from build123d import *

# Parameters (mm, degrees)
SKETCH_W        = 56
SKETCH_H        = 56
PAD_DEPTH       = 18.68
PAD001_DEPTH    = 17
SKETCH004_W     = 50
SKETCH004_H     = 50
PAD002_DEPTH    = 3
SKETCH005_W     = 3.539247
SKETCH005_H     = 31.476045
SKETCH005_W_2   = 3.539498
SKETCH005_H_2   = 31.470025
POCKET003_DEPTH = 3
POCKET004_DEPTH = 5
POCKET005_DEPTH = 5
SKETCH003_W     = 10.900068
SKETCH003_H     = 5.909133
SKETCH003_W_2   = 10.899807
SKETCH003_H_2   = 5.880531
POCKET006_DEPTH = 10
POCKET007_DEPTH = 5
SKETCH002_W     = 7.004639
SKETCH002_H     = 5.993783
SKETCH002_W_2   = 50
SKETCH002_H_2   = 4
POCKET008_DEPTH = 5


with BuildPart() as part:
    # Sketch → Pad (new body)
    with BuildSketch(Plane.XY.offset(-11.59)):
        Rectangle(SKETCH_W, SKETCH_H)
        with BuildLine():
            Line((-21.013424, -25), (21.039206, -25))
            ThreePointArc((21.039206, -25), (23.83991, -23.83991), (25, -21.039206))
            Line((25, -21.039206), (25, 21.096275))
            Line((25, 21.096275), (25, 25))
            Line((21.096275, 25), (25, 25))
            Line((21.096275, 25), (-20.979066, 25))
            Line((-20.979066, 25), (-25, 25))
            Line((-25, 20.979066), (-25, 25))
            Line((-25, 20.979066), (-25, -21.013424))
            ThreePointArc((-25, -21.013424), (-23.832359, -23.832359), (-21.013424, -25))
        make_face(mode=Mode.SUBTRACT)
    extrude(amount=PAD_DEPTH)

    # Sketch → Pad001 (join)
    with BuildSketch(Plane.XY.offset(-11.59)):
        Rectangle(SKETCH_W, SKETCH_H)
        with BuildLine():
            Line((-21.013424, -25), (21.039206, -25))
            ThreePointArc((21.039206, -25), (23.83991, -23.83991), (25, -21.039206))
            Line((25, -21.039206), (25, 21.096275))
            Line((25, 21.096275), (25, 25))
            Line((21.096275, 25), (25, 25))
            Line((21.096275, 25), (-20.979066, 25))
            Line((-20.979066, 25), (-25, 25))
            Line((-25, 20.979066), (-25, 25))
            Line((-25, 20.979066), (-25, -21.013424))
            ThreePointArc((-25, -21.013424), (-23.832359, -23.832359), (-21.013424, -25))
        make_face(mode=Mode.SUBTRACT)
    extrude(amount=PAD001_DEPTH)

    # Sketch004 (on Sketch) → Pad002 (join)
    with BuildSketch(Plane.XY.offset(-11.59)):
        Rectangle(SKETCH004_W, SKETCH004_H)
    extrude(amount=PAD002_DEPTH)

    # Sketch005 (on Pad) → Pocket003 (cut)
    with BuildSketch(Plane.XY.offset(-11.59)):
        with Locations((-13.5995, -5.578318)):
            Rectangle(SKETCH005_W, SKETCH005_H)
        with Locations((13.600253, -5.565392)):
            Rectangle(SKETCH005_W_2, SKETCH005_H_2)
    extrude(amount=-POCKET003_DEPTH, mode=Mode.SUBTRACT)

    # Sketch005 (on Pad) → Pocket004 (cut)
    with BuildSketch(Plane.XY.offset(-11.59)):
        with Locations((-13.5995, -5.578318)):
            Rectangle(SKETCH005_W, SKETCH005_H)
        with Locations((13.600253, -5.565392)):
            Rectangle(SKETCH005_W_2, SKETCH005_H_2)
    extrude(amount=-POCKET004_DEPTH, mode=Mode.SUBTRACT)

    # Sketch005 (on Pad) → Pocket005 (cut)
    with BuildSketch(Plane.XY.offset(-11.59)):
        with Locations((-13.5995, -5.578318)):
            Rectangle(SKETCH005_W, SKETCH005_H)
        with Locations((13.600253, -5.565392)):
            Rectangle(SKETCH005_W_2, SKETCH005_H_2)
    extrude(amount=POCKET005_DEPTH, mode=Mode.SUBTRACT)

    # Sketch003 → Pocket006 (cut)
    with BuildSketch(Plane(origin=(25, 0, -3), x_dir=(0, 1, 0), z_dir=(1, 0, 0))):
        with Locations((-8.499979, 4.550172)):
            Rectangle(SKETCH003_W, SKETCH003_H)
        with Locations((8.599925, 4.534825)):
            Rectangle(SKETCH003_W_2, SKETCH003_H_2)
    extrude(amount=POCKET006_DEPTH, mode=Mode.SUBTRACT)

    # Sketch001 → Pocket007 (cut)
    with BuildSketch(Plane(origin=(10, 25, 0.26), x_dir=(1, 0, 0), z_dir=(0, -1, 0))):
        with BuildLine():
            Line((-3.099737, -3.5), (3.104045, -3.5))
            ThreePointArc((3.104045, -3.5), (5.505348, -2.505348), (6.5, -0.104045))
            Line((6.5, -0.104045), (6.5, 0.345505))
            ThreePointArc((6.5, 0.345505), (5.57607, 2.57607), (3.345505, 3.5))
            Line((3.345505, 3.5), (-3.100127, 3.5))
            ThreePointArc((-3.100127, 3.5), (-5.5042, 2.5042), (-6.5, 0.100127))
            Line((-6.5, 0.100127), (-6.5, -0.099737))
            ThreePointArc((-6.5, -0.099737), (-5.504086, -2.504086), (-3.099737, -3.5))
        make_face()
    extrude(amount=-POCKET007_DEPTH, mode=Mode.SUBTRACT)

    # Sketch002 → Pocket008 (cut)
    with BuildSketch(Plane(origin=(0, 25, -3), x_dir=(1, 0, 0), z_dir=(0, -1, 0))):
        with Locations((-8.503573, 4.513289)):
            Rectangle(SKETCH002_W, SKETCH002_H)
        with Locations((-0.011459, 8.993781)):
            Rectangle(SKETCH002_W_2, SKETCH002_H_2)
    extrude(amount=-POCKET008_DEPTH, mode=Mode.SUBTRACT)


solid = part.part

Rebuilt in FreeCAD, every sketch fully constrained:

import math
import FreeCAD as App
import Part
import Sketcher
from FreeCAD import Vector
Q = App.Units.Quantity


def add_polygon(sketch, points):
    """Adds a closed chain of lines whose ends are joined by coincident constraints."""
    first, n = sketch.GeometryCount, len(points)
    for a, b in zip(points, points[1:] + points[:1]):
        sketch.addGeometry(Part.LineSegment(App.Vector(*a, 0), App.Vector(*b, 0)), False)
    for i in range(n):
        sketch.addConstraint(Sketcher.Constraint("Coincident", first + i, 2, first + (i + 1) % n, 1))

doc = App.newDocument("Part")
body = doc.addObject("PartDesign::Body", "Body")

# Sketch on XY plane
sketch1 = doc.addObject("Sketcher::SketchObject", "Sketch")
body.addObject(sketch1)
sketch1.AttachmentSupport = (doc.XY_Plane, [""])
sketch1.MapMode = "FlatFace"
sketch1.AttachmentOffset = App.Placement(Vector(0, 0, -11.59), App.Rotation())
add_polygon(sketch1, [(-28, 28), (-28, -28), (28, -28), (28, 28)])  # lines 0-3
sketch1.addGeometry(Part.LineSegment(Vector(21, -25, 0), Vector(-21, -25, 0)), False)  # 4
sketch1.addGeometry(Part.ArcOfCircle(Part.Circle(Vector(-21, -21, 0), Vector(0, 0, 1), 4), math.radians(180), math.radians(270)), False)  # 5
sketch1.addGeometry(Part.LineSegment(Vector(-25, -21, 0), Vector(-25, 25, 0)), False)  # 6
sketch1.addGeometry(Part.LineSegment(Vector(-25, 25, 0), Vector(25, 25, 0)), False)  # 7
sketch1.addGeometry(Part.LineSegment(Vector(25, 25, 0), Vector(25, -21, 0)), False)  # 8
sketch1.addGeometry(Part.ArcOfCircle(Part.Circle(Vector(21, -21, 0), Vector(0, 0, 1), 4), math.radians(-90), math.radians(0)), False)  # 9
sketch1.addConstraint([
    Sketcher.Constraint("Tangent", 4, 2, 5, 2),
    Sketcher.Constraint("Tangent", 5, 1, 6, 1),
    Sketcher.Constraint("Coincident", 6, 2, 7, 1),
    Sketcher.Constraint("Coincident", 7, 2, 8, 1),
    Sketcher.Constraint("Tangent", 8, 2, 9, 2),
    Sketcher.Constraint("Tangent", 9, 1, 4, 1),
    Sketcher.Constraint("Vertical", 0),
    Sketcher.Constraint("Horizontal", 1),
    Sketcher.Constraint("Vertical", 2),
    Sketcher.Constraint("Horizontal", 3),
    Sketcher.Constraint("Horizontal", 4),
    Sketcher.Constraint("Vertical", 6),
    Sketcher.Constraint("Horizontal", 7),
    Sketcher.Constraint("Vertical", 8),
    Sketcher.Constraint("Symmetric", 0, 2, 2, 2, -1, 1),
    Sketcher.Constraint("Equal", 3, 0),
    Sketcher.Constraint("DistanceX", 1, 1, 1, 2, Q("56 mm")),
    Sketcher.Constraint("DistanceX", 7, 1, 7, 2, Q("50 mm")),
    Sketcher.Constraint("DistanceY", 4, 2, -1, 1, Q("25 mm")),
    Sketcher.Constraint("DistanceX", 5, 1, -1, 1, Q("25 mm")),
    Sketcher.Constraint("DistanceY", -1, 1, 6, 2, Q("25 mm")),
    Sketcher.Constraint("Radius", 5, Q("3.986576 mm")),
    Sketcher.Constraint("Radius", 9, Q("3.960795 mm")),
])
pad1 = doc.addObject("PartDesign::Pad", "Pad")
body.addObject(pad1)
pad1.Profile = sketch1
pad1.Length = 18.68

# Sketch on XY plane
sketch2 = doc.addObject("Sketcher::SketchObject", "Sketch001")
body.addObject(sketch2)
sketch2.AttachmentSupport = (doc.XY_Plane, [""])
sketch2.MapMode = "FlatFace"
sketch2.AttachmentOffset = App.Placement(Vector(0, 0, -11.59), App.Rotation())
add_polygon(sketch2, [(-28, 28), (-28, -28), (28, -28), (28, 28)])  # lines 0-3
sketch2.addGeometry(Part.LineSegment(Vector(21, -25, 0), Vector(-21, -25, 0)), False)  # 4
sketch2.addGeometry(Part.ArcOfCircle(Part.Circle(Vector(-21, -21, 0), Vector(0, 0, 1), 4), math.radians(180), math.radians(270)), False)  # 5
sketch2.addGeometry(Part.LineSegment(Vector(-25, -21, 0), Vector(-25, 25, 0)), False)  # 6
sketch2.addGeometry(Part.LineSegment(Vector(-25, 25, 0), Vector(25, 25, 0)), False)  # 7
sketch2.addGeometry(Part.LineSegment(Vector(25, 25, 0), Vector(25, -21, 0)), False)  # 8
sketch2.addGeometry(Part.ArcOfCircle(Part.Circle(Vector(21, -21, 0), Vector(0, 0, 1), 4), math.radians(-90), math.radians(0)), False)  # 9
sketch2.addConstraint([
    Sketcher.Constraint("Tangent", 4, 2, 5, 2),
    Sketcher.Constraint("Tangent", 5, 1, 6, 1),
    Sketcher.Constraint("Coincident", 6, 2, 7, 1),
    Sketcher.Constraint("Coincident", 7, 2, 8, 1),
    Sketcher.Constraint("Tangent", 8, 2, 9, 2),
    Sketcher.Constraint("Tangent", 9, 1, 4, 1),
    Sketcher.Constraint("Vertical", 0),
    Sketcher.Constraint("Horizontal", 1),
    Sketcher.Constraint("Vertical", 2),
    Sketcher.Constraint("Horizontal", 3),
    Sketcher.Constraint("Horizontal", 4),
    Sketcher.Constraint("Vertical", 6),
    Sketcher.Constraint("Horizontal", 7),
    Sketcher.Constraint("Vertical", 8),
    Sketcher.Constraint("Symmetric", 0, 2, 2, 2, -1, 1),
    Sketcher.Constraint("Equal", 3, 0),
    Sketcher.Constraint("DistanceX", 1, 1, 1, 2, Q("56 mm")),
    Sketcher.Constraint("DistanceX", 7, 1, 7, 2, Q("50 mm")),
    Sketcher.Constraint("DistanceY", 4, 2, -1, 1, Q("25 mm")),
    Sketcher.Constraint("DistanceX", 5, 1, -1, 1, Q("25 mm")),
    Sketcher.Constraint("DistanceY", -1, 1, 6, 2, Q("25 mm")),
    Sketcher.Constraint("Radius", 5, Q("3.986576 mm")),
    Sketcher.Constraint("Radius", 9, Q("3.960795 mm")),
])
pad2 = doc.addObject("PartDesign::Pad", "Pad001")
body.addObject(pad2)
pad2.Profile = sketch2
pad2.Length = 17

# Sketch on XY plane
sketch3 = doc.addObject("Sketcher::SketchObject", "Sketch002")
body.addObject(sketch3)
sketch3.AttachmentSupport = (doc.XY_Plane, [""])
sketch3.MapMode = "FlatFace"
sketch3.AttachmentOffset = App.Placement(Vector(0, 0, -11.59), App.Rotation())
add_polygon(sketch3, [(-25, 25), (-25, -25), (25, -25), (25, 25)])  # lines 0-3
sketch3.addConstraint([
    Sketcher.Constraint("Vertical", 0),
    Sketcher.Constraint("Horizontal", 1),
    Sketcher.Constraint("Vertical", 2),
    Sketcher.Constraint("Horizontal", 3),
    Sketcher.Constraint("Symmetric", 0, 2, 2, 2, -1, 1),
    Sketcher.Constraint("Equal", 3, 0),
    Sketcher.Constraint("DistanceX", 1, 1, 1, 2, Q("50 mm")),
])
pad3 = doc.addObject("PartDesign::Pad", "Pad002")
body.addObject(pad3)
pad3.Profile = sketch3
pad3.Length = 3

# Sketch on XY plane
sketch4 = doc.addObject("Sketcher::SketchObject", "Sketch003")
body.addObject(sketch4)
sketch4.AttachmentSupport = (doc.XY_Plane, [""])
sketch4.MapMode = "FlatFace"
sketch4.AttachmentOffset = App.Placement(Vector(0, 0, -11.59), App.Rotation())
add_polygon(sketch4, [(-15.4, 10.2), (-15.4, -21.3), (-11.8, -21.3), (-11.8, 10.2)])  # lines 0-3
add_polygon(sketch4, [(11.8, 10.2), (11.8, -21.3), (15.4, -21.3), (15.4, 10.2)])  # lines 4-7
sketch4.addConstraint([
    Sketcher.Constraint("Vertical", 0),
    Sketcher.Constraint("Horizontal", 1),
    Sketcher.Constraint("Vertical", 2),
    Sketcher.Constraint("Horizontal", 3),
    Sketcher.Constraint("Vertical", 4),
    Sketcher.Constraint("Horizontal", 5),
    Sketcher.Constraint("Vertical", 6),
    Sketcher.Constraint("Horizontal", 7),
    Sketcher.Constraint("DistanceX", 5, 1, 5, 2, Q("3.539498 mm")),
    Sketcher.Constraint("DistanceX", 1, 1, 1, 2, Q("3.539247 mm")),
    Sketcher.Constraint("DistanceY", 0, 2, 0, 1, Q("31.476045 mm")),
    Sketcher.Constraint("DistanceY", 4, 2, 4, 1, Q("31.470025 mm")),
    Sketcher.Constraint("DistanceY", 0, 2, -1, 1, Q("21.31634 mm")),
    Sketcher.Constraint("DistanceY", -1, 1, 6, 2, Q("10.169621 mm")),
    Sketcher.Constraint("DistanceX", 1, 2, 4, 2, Q("23.66038 mm")),
    Sketcher.Constraint("DistanceX", 0, 2, -1, 1, Q("15.369124 mm")),
])
pocket1 = doc.addObject("PartDesign::Pocket", "Pocket")
body.addObject(pocket1)
pocket1.Profile = sketch4
pocket1.Length = 3

# Sketch on XY plane
sketch5 = doc.addObject("Sketcher::SketchObject", "Sketch004")
body.addObject(sketch5)
sketch5.AttachmentSupport = (doc.XY_Plane, [""])
sketch5.MapMode = "FlatFace"
sketch5.AttachmentOffset = App.Placement(Vector(0, 0, -11.59), App.Rotation())
add_polygon(sketch5, [(-15.4, 10.2), (-15.4, -21.3), (-11.8, -21.3), (-11.8, 10.2)])  # lines 0-3
add_polygon(sketch5, [(11.8, 10.2), (11.8, -21.3), (15.4, -21.3), (15.4, 10.2)])  # lines 4-7
sketch5.addConstraint([
    Sketcher.Constraint("Vertical", 0),
    Sketcher.Constraint("Horizontal", 1),
    Sketcher.Constraint("Vertical", 2),
    Sketcher.Constraint("Horizontal", 3),
    Sketcher.Constraint("Vertical", 4),
    Sketcher.Constraint("Horizontal", 5),
    Sketcher.Constraint("Vertical", 6),
    Sketcher.Constraint("Horizontal", 7),
    Sketcher.Constraint("DistanceX", 5, 1, 5, 2, Q("3.539498 mm")),
    Sketcher.Constraint("DistanceX", 1, 1, 1, 2, Q("3.539247 mm")),
    Sketcher.Constraint("DistanceY", 0, 2, 0, 1, Q("31.476045 mm")),
    Sketcher.Constraint("DistanceY", 4, 2, 4, 1, Q("31.470025 mm")),
    Sketcher.Constraint("DistanceY", 0, 2, -1, 1, Q("21.31634 mm")),
    Sketcher.Constraint("DistanceY", -1, 1, 6, 2, Q("10.169621 mm")),
    Sketcher.Constraint("DistanceX", 1, 2, 4, 2, Q("23.66038 mm")),
    Sketcher.Constraint("DistanceX", 0, 2, -1, 1, Q("15.369124 mm")),
])
pocket2 = doc.addObject("PartDesign::Pocket", "Pocket001")
body.addObject(pocket2)
pocket2.Profile = sketch5
pocket2.Length = 5

# Sketch on XY plane
sketch6 = doc.addObject("Sketcher::SketchObject", "Sketch005")
body.addObject(sketch6)
sketch6.AttachmentSupport = (doc.XY_Plane, [""])
sketch6.MapMode = "FlatFace"
sketch6.AttachmentOffset = App.Placement(Vector(0, 0, -11.59), App.Rotation())
add_polygon(sketch6, [(-15.4, 10.2), (-15.4, -21.3), (-11.8, -21.3), (-11.8, 10.2)])  # lines 0-3
add_polygon(sketch6, [(11.8, 10.2), (11.8, -21.3), (15.4, -21.3), (15.4, 10.2)])  # lines 4-7
sketch6.addConstraint([
    Sketcher.Constraint("Vertical", 0),
    Sketcher.Constraint("Horizontal", 1),
    Sketcher.Constraint("Vertical", 2),
    Sketcher.Constraint("Horizontal", 3),
    Sketcher.Constraint("Vertical", 4),
    Sketcher.Constraint("Horizontal", 5),
    Sketcher.Constraint("Vertical", 6),
    Sketcher.Constraint("Horizontal", 7),
    Sketcher.Constraint("DistanceX", 5, 1, 5, 2, Q("3.539498 mm")),
    Sketcher.Constraint("DistanceX", 1, 1, 1, 2, Q("3.539247 mm")),
    Sketcher.Constraint("DistanceY", 0, 2, 0, 1, Q("31.476045 mm")),
    Sketcher.Constraint("DistanceY", 4, 2, 4, 1, Q("31.470025 mm")),
    Sketcher.Constraint("DistanceY", 0, 2, -1, 1, Q("21.31634 mm")),
    Sketcher.Constraint("DistanceY", -1, 1, 6, 2, Q("10.169621 mm")),
    Sketcher.Constraint("DistanceX", 1, 2, 4, 2, Q("23.66038 mm")),
    Sketcher.Constraint("DistanceX", 0, 2, -1, 1, Q("15.369124 mm")),
])
pocket3 = doc.addObject("PartDesign::Pocket", "Pocket002")
body.addObject(pocket3)
pocket3.Profile = sketch6
pocket3.Length = 5
pocket3.Reversed = True

# Sketch on YZ plane
sketch7 = doc.addObject("Sketcher::SketchObject", "Sketch006")
body.addObject(sketch7)
sketch7.AttachmentSupport = (doc.YZ_Plane, [""])
sketch7.MapMode = "FlatFace"
sketch7.AttachmentOffset = App.Placement(Vector(0, 0, 25), App.Rotation())
add_polygon(sketch7, [(-14, 5), (-14, -1), (-3, -1), (-3, 5)])  # lines 0-3
add_polygon(sketch7, [(3, 4), (3, -1), (14, -1), (14, 4)])  # lines 4-7
sketch7.addConstraint([
    Sketcher.Constraint("Vertical", 0),
    Sketcher.Constraint("Horizontal", 1),
    Sketcher.Constraint("Vertical", 2),
    Sketcher.Constraint("Horizontal", 3),
    Sketcher.Constraint("Vertical", 4),
    Sketcher.Constraint("Horizontal", 5),
    Sketcher.Constraint("Vertical", 6),
    Sketcher.Constraint("Horizontal", 7),
    Sketcher.Constraint("DistanceX", 1, 1, 1, 2, Q("10.900068 mm")),
    Sketcher.Constraint("DistanceY", 4, 2, 4, 1, Q("5.880531 mm")),
    Sketcher.Constraint("DistanceX", 5, 1, 5, 2, Q("10.899807 mm")),
    Sketcher.Constraint("DistanceY", 0, 2, 0, 1, Q("5.909133 mm")),
    Sketcher.Constraint("DistanceY", -1, 1, 2, 2, Q("4.504739 mm")),
    Sketcher.Constraint("DistanceX", -1, 1, 4, 2, Q("3.150021 mm")),
    Sketcher.Constraint("DistanceY", 4, 2, -1, 1, Q("1.405441 mm")),
    Sketcher.Constraint("DistanceX", 0, 2, 5, 2, Q("27.999842 mm")),
])
pocket4 = doc.addObject("PartDesign::Pocket", "Pocket003")
body.addObject(pocket4)
pocket4.Profile = sketch7
pocket4.Length = 10
pocket4.Reversed = True

# Sketch on XZ plane
sketch8 = doc.addObject("Sketcher::SketchObject", "Sketch007")
body.addObject(sketch8)
sketch8.AttachmentSupport = (doc.XZ_Plane, [""])
sketch8.MapMode = "FlatFace"
sketch8.AttachmentOffset = App.Placement(Vector(0, 0, -25), App.Rotation())
sketch8.addGeometry([
    Part.LineSegment(Vector(6.9, -3.24, 0), Vector(13.1, -3.24, 0)),  # 0
    Part.ArcOfCircle(Part.Circle(Vector(13.1, 0.16, 0), Vector(0, 0, 1), 3.4), math.radians(-90), math.radians(0)),  # 1
    Part.LineSegment(Vector(16.5, 0.16, 0), Vector(16.5, 0.61, 0)),  # 2
    Part.ArcOfCircle(Part.Circle(Vector(13.35, 0.61, 0), Vector(0, 0, 1), 3.15), math.radians(0), math.radians(90)),  # 3
    Part.LineSegment(Vector(13.35, 3.76, 0), Vector(6.9, 3.76, 0)),  # 4
    Part.ArcOfCircle(Part.Circle(Vector(6.9, 0.36, 0), Vector(0, 0, 1), 3.4), math.radians(90), math.radians(180)),  # 5
    Part.LineSegment(Vector(3.5, 0.36, 0), Vector(3.5, 0.16, 0)),  # 6
    Part.ArcOfCircle(Part.Circle(Vector(6.9, 0.16, 0), Vector(0, 0, 1), 3.4), math.radians(-180), math.radians(-90)),  # 7
], False)
sketch8.addConstraint([
    Sketcher.Constraint("Tangent", 0, 2, 1, 1),
    Sketcher.Constraint("Tangent", 1, 2, 2, 1),
    Sketcher.Constraint("Tangent", 2, 2, 3, 1),
    Sketcher.Constraint("Tangent", 3, 2, 4, 1),
    Sketcher.Constraint("Tangent", 4, 2, 5, 1),
    Sketcher.Constraint("Tangent", 5, 2, 6, 1),
    Sketcher.Constraint("Tangent", 6, 2, 7, 1),
    Sketcher.Constraint("Tangent", 7, 2, 0, 1),
    Sketcher.Constraint("Horizontal", 0),
    Sketcher.Constraint("Vertical", 2),
    Sketcher.Constraint("Horizontal", 4),
    Sketcher.Constraint("Vertical", 6),
    Sketcher.Constraint("DistanceY", 0, 2, 3, 2, Q("7 mm")),
    Sketcher.Constraint("DistanceX", -1, 1, 1, 2, Q("16.5 mm")),
    Sketcher.Constraint("DistanceX", -1, 1, 5, 2, Q("3.5 mm")),
    Sketcher.Constraint("DistanceY", 0, 2, -1, 1, Q("3.24 mm")),
    Sketcher.Constraint("Radius", 1, Q("3.395954 mm")),
    Sketcher.Constraint("Radius", 3, Q("3.154494 mm")),
    Sketcher.Constraint("Radius", 5, Q("3.399874 mm")),
    Sketcher.Constraint("Radius", 7, Q("3.400263 mm")),
])
pocket5 = doc.addObject("PartDesign::Pocket", "Pocket004")
body.addObject(pocket5)
pocket5.Profile = sketch8
pocket5.Length = 5

# Sketch on XZ plane
sketch9 = doc.addObject("Sketcher::SketchObject", "Sketch008")
body.addObject(sketch9)
sketch9.AttachmentSupport = (doc.XZ_Plane, [""])
sketch9.MapMode = "FlatFace"
sketch9.AttachmentOffset = App.Placement(Vector(0, 0, -25), App.Rotation())
add_polygon(sketch9, [(-12, 4), (-12, -1.5), (-5, -1.5), (-5, 4), (25, 4), (25, 8), (-25, 8), (-25, 4)])  # lines 0-7
sketch9.addConstraint([
    Sketcher.Constraint("Vertical", 0),
    Sketcher.Constraint("Horizontal", 1),
    Sketcher.Constraint("Vertical", 2),
    Sketcher.Constraint("Horizontal", 3),
    Sketcher.Constraint("Vertical", 4),
    Sketcher.Constraint("Horizontal", 5),
    Sketcher.Constraint("Vertical", 6),
    Sketcher.Constraint("Horizontal", 7),
    Sketcher.Constraint("Horizontal", 3, 2, 6, 2),
    Sketcher.Constraint("DistanceX", 5, 2, 5, 1, Q("50 mm")),
    Sketcher.Constraint("DistanceY", 4, 1, 4, 2, Q("4 mm")),
    Sketcher.Constraint("DistanceX", 1, 1, 1, 2, Q("7.004639 mm")),
    Sketcher.Constraint("DistanceX", 3, 1, 3, 2, Q("29.989795 mm")),
    Sketcher.Constraint("DistanceY", 0, 2, 0, 1, Q("5.477384 mm")),
    Sketcher.Constraint("DistanceY", -1, 1, 2, 2, Q("3.993781 mm")),
    Sketcher.Constraint("DistanceX", -1, 1, 3, 2, Q("24.988541 mm")),
])
pocket6 = doc.addObject("PartDesign::Pocket", "Pocket005")
body.addObject(pocket6)
pocket6.Profile = sketch9
pocket6.Length = 5

doc.recompute()
